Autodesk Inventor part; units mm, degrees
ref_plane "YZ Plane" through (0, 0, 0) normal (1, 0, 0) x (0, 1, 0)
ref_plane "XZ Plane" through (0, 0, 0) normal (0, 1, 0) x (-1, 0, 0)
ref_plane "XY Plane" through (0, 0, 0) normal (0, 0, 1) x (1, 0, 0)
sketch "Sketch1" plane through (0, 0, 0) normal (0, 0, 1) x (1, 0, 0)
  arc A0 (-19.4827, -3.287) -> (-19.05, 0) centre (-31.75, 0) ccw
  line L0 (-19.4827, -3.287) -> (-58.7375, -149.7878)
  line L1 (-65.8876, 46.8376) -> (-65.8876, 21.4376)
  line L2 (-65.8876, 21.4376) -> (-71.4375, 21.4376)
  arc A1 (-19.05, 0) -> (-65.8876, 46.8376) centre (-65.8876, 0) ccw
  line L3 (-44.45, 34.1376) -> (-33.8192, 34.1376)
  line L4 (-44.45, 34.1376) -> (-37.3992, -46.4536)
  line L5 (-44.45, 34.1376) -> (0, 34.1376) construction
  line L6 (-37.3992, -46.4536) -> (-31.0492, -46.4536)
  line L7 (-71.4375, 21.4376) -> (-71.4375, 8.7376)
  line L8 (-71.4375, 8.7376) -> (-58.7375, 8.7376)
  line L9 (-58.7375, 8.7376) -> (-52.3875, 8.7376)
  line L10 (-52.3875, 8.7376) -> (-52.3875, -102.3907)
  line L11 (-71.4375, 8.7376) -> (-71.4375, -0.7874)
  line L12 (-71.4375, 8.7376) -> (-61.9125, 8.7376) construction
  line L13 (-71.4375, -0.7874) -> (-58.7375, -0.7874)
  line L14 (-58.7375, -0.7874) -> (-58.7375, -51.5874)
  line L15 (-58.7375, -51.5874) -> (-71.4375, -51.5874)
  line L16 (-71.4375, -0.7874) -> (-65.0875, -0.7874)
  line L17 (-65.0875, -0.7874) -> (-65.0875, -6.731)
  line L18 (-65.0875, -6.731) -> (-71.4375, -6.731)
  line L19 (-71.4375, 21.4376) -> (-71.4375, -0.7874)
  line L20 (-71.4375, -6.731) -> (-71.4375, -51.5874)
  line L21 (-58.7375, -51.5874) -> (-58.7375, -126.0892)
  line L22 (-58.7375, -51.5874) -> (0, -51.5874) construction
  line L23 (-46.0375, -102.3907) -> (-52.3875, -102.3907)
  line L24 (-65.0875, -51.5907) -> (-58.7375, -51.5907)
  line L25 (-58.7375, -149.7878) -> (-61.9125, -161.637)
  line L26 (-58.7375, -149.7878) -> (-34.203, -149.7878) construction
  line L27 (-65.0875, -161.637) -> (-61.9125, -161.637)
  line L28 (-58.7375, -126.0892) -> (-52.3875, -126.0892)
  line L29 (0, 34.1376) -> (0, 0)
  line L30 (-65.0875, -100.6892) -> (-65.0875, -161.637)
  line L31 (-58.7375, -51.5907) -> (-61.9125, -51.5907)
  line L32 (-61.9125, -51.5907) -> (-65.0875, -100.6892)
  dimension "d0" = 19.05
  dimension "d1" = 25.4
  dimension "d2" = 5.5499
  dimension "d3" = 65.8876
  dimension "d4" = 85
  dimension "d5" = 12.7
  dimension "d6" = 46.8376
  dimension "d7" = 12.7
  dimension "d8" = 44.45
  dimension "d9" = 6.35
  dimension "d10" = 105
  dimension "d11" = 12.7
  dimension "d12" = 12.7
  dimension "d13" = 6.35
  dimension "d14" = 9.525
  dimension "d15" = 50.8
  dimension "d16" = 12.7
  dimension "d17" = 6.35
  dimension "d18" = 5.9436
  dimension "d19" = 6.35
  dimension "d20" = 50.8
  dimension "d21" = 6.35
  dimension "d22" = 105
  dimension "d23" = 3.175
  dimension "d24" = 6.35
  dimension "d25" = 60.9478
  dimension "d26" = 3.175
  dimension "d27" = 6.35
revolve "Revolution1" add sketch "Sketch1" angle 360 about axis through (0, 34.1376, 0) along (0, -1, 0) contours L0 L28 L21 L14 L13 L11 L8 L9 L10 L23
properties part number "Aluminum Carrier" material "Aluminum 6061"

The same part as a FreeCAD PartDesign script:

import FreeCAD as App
import Part
import Sketcher
from FreeCAD import Vector
Q = App.Units.Quantity


def add_polygon(sketch, points):
    """Adds a closed chain of lines whose ends are joined by coincident constraints."""
    first, n = sketch.GeometryCount, len(points)
    for a, b in zip(points, points[1:] + points[:1]):
        sketch.addGeometry(Part.LineSegment(App.Vector(*a, 0), App.Vector(*b, 0)), False)
    for i in range(n):
        sketch.addConstraint(Sketcher.Constraint("Coincident", first + i, 2, first + (i + 1) % n, 1))

doc = App.newDocument("Part")
body = doc.addObject("PartDesign::Body", "Body")

# Sketch on XY plane
sketch1 = doc.addObject("Sketcher::SketchObject", "Sketch")
body.addObject(sketch1)
sketch1.AttachmentSupport = (doc.XY_Plane, [""])
sketch1.MapMode = "FlatFace"
add_polygon(sketch1, [(-52, -126), (-46, -102), (-52, -102), (-52, 9), (-71, 9), (-71, -1), (-59, -1), (-59, -126)])  # lines 0-7
sketch1.addConstraint(Sketcher.Constraint("Horizontal", 1))
sketch1.addConstraint(Sketcher.Constraint("Vertical", 2))
sketch1.addConstraint(Sketcher.Constraint("Horizontal", 3))
sketch1.addConstraint(Sketcher.Constraint("Vertical", 4))
sketch1.addConstraint(Sketcher.Constraint("Horizontal", 5))
sketch1.addConstraint(Sketcher.Constraint("Vertical", 6))
sketch1.addConstraint(Sketcher.Constraint("Horizontal", 7))
sketch1.addConstraint(Sketcher.Constraint("Vertical", 2, 2, 7, 2))
sketch1.addConstraint(Sketcher.Constraint("Equal", 1, 7))
sketch1.addConstraint(Sketcher.Constraint("DistanceX", 5, 1, 5, 2, Q("0.5 in")))
sketch1.addConstraint(Sketcher.Constraint("DistanceX", 3, 2, 0, 2, Q("1 in")))
sketch1.addConstraint(Sketcher.Constraint("DistanceY", 4, 2, 4, 1, Q("0.375 in")))
sketch1.addConstraint(Sketcher.Constraint("Angle", 0, Q("75 deg")))
sketch1.addConstraint(Sketcher.Constraint("DistanceX", 0, 2, -1, 1, Q("1.8125 in")))
sketch1.addConstraint(Sketcher.Constraint("DistanceY", -1, 1, 2, 2, Q("0.344 in")))
sketch1.addConstraint(Sketcher.Constraint("DistanceY", 2, 1, 2, 2, Q("111.1283 mm")))
revolution = doc.addObject("PartDesign::Revolution", "Revolution")
body.addObject(revolution)
revolution.Profile = sketch1
revolution.ReferenceAxis = (sketch1, ["V_Axis"])
revolution.Angle = 360

doc.recompute()
